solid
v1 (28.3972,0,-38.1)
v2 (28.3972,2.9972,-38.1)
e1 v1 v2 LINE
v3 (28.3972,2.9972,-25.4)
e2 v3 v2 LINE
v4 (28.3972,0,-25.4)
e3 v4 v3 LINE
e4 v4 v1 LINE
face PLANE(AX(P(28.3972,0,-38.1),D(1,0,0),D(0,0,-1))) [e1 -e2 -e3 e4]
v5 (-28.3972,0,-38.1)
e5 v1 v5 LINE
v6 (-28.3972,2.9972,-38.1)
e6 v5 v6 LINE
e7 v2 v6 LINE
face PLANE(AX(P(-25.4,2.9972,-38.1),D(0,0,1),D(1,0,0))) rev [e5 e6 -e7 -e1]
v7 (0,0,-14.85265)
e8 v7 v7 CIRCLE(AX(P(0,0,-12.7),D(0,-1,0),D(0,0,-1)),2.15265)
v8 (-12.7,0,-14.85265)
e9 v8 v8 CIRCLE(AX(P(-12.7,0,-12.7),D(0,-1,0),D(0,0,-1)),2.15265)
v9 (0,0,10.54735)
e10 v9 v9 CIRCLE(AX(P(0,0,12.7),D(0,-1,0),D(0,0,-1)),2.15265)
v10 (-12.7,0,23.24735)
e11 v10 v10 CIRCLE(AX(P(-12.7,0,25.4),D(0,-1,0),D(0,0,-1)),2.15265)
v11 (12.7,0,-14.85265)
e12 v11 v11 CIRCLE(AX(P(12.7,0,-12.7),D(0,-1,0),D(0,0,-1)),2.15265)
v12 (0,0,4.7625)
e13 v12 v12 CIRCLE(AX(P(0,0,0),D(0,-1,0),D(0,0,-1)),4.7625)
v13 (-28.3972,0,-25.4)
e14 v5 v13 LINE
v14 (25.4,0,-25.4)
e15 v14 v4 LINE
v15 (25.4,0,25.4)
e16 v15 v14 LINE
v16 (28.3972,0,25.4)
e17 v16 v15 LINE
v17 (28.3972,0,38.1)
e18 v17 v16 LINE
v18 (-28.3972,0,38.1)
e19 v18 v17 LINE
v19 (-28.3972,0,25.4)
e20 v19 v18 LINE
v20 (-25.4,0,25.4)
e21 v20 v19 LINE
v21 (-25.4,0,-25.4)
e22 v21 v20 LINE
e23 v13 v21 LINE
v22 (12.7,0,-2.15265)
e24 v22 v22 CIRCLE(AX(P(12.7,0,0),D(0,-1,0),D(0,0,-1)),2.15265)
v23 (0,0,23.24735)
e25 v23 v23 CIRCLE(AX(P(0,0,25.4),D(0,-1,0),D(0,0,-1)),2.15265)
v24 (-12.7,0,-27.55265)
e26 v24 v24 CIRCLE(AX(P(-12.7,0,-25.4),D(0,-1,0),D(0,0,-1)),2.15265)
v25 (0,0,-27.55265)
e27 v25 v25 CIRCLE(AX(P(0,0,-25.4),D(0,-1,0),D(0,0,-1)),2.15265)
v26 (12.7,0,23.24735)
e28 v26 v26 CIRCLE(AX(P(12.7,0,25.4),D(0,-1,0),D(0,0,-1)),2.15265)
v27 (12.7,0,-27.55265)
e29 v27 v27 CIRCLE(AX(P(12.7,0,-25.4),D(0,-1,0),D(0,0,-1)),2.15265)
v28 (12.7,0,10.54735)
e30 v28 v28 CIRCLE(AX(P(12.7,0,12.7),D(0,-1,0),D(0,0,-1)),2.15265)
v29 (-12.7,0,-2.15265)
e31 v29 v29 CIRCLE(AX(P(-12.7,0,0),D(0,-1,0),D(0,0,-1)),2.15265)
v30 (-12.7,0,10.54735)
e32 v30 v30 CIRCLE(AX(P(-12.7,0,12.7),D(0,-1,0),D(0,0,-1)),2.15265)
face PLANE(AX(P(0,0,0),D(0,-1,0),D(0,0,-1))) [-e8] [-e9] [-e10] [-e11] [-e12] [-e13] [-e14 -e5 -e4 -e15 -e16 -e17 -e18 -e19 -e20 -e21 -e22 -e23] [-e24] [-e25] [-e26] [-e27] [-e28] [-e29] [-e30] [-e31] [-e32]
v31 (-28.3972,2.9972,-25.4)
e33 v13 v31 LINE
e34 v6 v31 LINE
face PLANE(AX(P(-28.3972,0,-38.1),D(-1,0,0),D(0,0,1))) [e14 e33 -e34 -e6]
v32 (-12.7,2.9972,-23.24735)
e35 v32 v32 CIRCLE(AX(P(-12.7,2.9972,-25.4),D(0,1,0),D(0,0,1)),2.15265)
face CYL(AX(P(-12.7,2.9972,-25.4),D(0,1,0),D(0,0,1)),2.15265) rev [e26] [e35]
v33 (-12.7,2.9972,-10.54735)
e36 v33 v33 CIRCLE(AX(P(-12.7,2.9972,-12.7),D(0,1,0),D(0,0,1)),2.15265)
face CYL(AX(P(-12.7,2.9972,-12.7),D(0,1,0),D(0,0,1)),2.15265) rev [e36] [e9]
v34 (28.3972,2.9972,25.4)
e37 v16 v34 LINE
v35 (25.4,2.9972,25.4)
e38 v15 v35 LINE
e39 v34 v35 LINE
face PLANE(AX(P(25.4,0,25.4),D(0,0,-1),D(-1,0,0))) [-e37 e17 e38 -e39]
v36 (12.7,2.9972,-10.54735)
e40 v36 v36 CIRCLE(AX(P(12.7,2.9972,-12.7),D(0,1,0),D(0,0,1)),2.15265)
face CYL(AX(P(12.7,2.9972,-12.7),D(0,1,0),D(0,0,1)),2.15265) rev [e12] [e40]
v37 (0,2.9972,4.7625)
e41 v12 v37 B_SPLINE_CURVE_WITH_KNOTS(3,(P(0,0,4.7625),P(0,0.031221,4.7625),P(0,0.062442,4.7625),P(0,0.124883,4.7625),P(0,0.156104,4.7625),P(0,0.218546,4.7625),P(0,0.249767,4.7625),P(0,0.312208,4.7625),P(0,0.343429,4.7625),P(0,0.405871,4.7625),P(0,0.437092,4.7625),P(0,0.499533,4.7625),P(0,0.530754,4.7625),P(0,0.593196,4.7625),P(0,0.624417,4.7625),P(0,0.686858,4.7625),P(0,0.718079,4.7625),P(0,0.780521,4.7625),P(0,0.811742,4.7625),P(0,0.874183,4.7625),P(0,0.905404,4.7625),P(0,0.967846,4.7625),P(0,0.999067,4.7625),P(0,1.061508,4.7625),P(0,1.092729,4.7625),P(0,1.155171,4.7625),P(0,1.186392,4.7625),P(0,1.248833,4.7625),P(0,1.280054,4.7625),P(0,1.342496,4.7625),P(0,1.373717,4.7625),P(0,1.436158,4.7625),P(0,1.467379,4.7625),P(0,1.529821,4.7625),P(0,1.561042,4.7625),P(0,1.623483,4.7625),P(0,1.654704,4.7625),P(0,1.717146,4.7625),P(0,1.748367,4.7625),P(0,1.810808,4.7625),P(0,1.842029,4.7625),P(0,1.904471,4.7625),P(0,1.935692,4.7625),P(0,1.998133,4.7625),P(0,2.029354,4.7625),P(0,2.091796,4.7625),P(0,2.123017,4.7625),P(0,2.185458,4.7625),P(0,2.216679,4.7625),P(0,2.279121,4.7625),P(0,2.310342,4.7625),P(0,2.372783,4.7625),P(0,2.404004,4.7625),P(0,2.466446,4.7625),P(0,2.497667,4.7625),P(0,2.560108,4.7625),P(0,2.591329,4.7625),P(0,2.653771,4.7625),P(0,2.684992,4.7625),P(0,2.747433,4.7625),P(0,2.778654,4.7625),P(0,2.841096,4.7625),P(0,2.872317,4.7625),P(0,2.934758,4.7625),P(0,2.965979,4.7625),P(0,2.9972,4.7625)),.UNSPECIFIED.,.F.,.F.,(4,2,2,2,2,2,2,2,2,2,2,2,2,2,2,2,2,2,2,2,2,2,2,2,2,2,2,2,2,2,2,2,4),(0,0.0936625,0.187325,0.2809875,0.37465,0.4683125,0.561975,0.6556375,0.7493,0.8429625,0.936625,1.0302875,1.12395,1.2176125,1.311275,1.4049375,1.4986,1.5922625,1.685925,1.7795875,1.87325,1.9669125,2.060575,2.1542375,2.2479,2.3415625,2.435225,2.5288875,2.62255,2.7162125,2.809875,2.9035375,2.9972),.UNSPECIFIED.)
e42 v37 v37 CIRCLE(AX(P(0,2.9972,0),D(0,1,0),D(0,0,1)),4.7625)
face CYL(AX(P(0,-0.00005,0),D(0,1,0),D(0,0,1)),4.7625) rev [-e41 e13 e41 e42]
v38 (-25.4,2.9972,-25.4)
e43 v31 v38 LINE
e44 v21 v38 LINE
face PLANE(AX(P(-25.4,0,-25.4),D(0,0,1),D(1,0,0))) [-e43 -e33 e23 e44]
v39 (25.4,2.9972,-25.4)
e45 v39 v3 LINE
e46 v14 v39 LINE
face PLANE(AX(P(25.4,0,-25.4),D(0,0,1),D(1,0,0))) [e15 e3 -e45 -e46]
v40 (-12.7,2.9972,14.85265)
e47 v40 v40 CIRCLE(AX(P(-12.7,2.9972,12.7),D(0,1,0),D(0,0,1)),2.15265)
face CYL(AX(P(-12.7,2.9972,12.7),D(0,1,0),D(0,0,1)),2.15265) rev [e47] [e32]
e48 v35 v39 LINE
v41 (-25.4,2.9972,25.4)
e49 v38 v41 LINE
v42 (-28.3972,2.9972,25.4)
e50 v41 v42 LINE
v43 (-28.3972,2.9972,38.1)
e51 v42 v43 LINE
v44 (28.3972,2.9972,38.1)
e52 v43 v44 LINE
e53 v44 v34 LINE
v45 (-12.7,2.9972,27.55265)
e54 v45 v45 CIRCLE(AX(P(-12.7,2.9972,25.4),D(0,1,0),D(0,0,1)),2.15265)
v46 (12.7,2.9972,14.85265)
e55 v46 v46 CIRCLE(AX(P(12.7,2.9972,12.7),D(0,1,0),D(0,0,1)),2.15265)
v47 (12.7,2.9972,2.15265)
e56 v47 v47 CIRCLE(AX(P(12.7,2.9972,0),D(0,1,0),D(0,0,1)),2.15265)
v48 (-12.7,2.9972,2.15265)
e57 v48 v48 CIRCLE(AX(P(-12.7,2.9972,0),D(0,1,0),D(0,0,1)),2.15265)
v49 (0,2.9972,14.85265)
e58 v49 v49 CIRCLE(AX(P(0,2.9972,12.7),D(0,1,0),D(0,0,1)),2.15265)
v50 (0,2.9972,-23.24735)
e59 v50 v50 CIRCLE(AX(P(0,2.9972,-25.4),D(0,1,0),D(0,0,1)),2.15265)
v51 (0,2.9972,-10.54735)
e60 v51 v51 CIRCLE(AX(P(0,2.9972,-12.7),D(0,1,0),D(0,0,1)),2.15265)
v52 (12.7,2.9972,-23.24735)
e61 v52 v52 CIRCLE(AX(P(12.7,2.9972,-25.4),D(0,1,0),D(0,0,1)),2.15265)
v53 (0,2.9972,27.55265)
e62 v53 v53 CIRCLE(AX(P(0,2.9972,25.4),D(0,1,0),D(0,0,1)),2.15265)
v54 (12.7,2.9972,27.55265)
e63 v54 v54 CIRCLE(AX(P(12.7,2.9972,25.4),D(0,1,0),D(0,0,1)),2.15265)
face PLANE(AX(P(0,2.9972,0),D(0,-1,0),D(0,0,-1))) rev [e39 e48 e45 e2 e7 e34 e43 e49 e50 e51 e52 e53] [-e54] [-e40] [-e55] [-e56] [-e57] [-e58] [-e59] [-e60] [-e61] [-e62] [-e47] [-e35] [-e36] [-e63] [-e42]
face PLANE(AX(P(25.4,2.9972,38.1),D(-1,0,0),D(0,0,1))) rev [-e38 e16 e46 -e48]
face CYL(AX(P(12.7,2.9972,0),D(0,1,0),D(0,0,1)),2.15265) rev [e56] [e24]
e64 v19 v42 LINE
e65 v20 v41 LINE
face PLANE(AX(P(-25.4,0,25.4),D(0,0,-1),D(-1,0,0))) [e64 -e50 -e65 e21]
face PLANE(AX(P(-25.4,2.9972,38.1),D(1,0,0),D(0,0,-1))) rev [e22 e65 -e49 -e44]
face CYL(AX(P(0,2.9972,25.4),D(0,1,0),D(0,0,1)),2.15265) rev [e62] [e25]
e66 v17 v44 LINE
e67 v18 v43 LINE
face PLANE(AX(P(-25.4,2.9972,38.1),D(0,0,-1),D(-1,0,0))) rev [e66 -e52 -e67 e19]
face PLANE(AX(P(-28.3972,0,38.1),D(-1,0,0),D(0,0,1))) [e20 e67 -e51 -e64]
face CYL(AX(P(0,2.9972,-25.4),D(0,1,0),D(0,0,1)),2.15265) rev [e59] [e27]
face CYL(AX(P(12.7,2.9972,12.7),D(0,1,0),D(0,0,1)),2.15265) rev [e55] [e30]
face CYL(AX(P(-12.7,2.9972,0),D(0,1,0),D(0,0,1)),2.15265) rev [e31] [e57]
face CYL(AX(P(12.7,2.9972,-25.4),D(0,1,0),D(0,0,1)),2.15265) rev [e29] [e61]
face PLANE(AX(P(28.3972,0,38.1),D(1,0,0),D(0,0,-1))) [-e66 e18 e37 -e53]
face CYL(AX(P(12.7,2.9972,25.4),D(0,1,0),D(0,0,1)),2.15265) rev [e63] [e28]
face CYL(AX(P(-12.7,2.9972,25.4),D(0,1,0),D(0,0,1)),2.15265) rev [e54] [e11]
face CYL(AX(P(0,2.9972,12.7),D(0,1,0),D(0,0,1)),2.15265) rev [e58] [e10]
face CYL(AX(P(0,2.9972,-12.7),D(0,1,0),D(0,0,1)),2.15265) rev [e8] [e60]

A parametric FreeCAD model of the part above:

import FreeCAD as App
import Part
import Sketcher
Q = App.Units.Quantity

doc = App.newDocument("Part")
body = doc.addObject("PartDesign::Body", "Body")

# Sketch on XZ plane
sketch1 = doc.addObject("Sketcher::SketchObject", "Sketch")
body.addObject(sketch1)
sketch1.AttachmentSupport = (doc.XZ_Plane, [""])
sketch1.MapMode = "FlatFace"
sketch1.addGeometry(Part.LineSegment(App.Vector(-25, -38, 0), App.Vector(-25, 38, 0)), False)
sketch1.addGeometry(Part.LineSegment(App.Vector(-25, 38, 0), App.Vector(25, 38, 0)), False)
sketch1.addGeometry(Part.LineSegment(App.Vector(25, 38, 0), App.Vector(25, -38, 0)), False)
sketch1.addGeometry(Part.LineSegment(App.Vector(25, -38, 0), App.Vector(-25, -38, 0)), False)
sketch1.addConstraint(Sketcher.Constraint("Coincident", 0, 2, 1, 1))
sketch1.addConstraint(Sketcher.Constraint("Coincident", 1, 2, 2, 1))
sketch1.addConstraint(Sketcher.Constraint("Coincident", 2, 2, 3, 1))
sketch1.addConstraint(Sketcher.Constraint("Coincident", 3, 2, 0, 1))
sketch1.addConstraint(Sketcher.Constraint("Vertical", 0))
sketch1.addConstraint(Sketcher.Constraint("Horizontal", 1))
sketch1.addConstraint(Sketcher.Constraint("Vertical", 2))
sketch1.addConstraint(Sketcher.Constraint("Horizontal", 3))
sketch1.addConstraint(Sketcher.Constraint("Symmetric", 0, 2, 2, 2, -1, 1))
sketch1.addConstraint(Sketcher.Constraint("DistanceX", 1, 1, 1, 2, Q("2 in")))
sketch1.addConstraint(Sketcher.Constraint("DistanceY", 0, 1, 0, 2, Q("3 in")))
pad1 = doc.addObject("PartDesign::Pad", "Pad")
body.addObject(pad1)
pad1.Profile = sketch1
pad1.Length = Q("0.118 in")
pad1.Reversed = True

# Sketch on XZ plane
sketch2 = doc.addObject("Sketcher::SketchObject", "Sketch001")
body.addObject(sketch2)
sketch2.AttachmentSupport = (doc.XZ_Plane, [""])
sketch2.MapMode = "FlatFace"
sketch2.AttachmentOffset = App.Placement(App.Vector(0, 0, -0.118 * 25.4), App.Rotation())
sketch2.addGeometry(Part.LineSegment(App.Vector(25.4, -38.1, 0), App.Vector(25.4, -25.4, 0)), False)
sketch2.addGeometry(Part.LineSegment(App.Vector(25.4, -25.4, 0), App.Vector(28.4, -25.4, 0)), False)
sketch2.addGeometry(Part.LineSegment(App.Vector(28.4, -25.4, 0), App.Vector(28.4, -38.1, 0)), False)
sketch2.addGeometry(Part.LineSegment(App.Vector(28.4, -38.1, 0), App.Vector(25.4, -38.1, 0)), False)
sketch2.addGeometry(Part.LineSegment(App.Vector(25.4, 25.4, 0), App.Vector(25.4, 38.1, 0)), False)
sketch2.addGeometry(Part.LineSegment(App.Vector(25.4, 38.1, 0), App.Vector(28.4, 38.1, 0)), False)
sketch2.addGeometry(Part.LineSegment(App.Vector(28.4, 38.1, 0), App.Vector(28.4, 25.4, 0)), False)
sketch2.addGeometry(Part.LineSegment(App.Vector(28.4, 25.4, 0), App.Vector(25.4, 25.4, 0)), False)
sketch2.addGeometry(Part.LineSegment(App.Vector(-28.4, 25.4, 0), App.Vector(-28.4, 38.1, 0)), False)
sketch2.addGeometry(Part.LineSegment(App.Vector(-28.4, 38.1, 0), App.Vector(-25.4, 38.1, 0)), False)
sketch2.addGeometry(Part.LineSegment(App.Vector(-25.4, 38.1, 0), App.Vector(-25.4, 25.4, 0)), False)
sketch2.addGeometry(Part.LineSegment(App.Vector(-25.4, 25.4, 0), App.Vector(-28.4, 25.4, 0)), False)
sketch2.addGeometry(Part.LineSegment(App.Vector(-28.4, -38.1, 0), App.Vector(-28.4, -25.4, 0)), False)
sketch2.addGeometry(Part.LineSegment(App.Vector(-28.4, -25.4, 0), App.Vector(-25.4, -25.4, 0)), False)
sketch2.addGeometry(Part.LineSegment(App.Vector(-25.4, -25.4, 0), App.Vector(-25.4, -38.1, 0)), False)
sketch2.addGeometry(Part.LineSegment(App.Vector(-25.4, -38.1, 0), App.Vector(-28.4, -38.1, 0)), False)
sketch2.addConstraint(Sketcher.Constraint("Coincident", 0, 2, 1, 1))
sketch2.addConstraint(Sketcher.Constraint("Coincident", 1, 2, 2, 1))
sketch2.addConstraint(Sketcher.Constraint("Coincident", 2, 2, 3, 1))
sketch2.addConstraint(Sketcher.Constraint("Coincident", 3, 2, 0, 1))
sketch2.addConstraint(Sketcher.Constraint("Coincident", 4, 2, 5, 1))
sketch2.addConstraint(Sketcher.Constraint("Coincident", 5, 2, 6, 1))
sketch2.addConstraint(Sketcher.Constraint("Coincident", 6, 2, 7, 1))
sketch2.addConstraint(Sketcher.Constraint("Coincident", 7, 2, 4, 1))
sketch2.addConstraint(Sketcher.Constraint("Coincident", 8, 2, 9, 1))
sketch2.addConstraint(Sketcher.Constraint("Coincident", 9, 2, 10, 1))
sketch2.addConstraint(Sketcher.Constraint("Coincident", 10, 2, 11, 1))
sketch2.addConstraint(Sketcher.Constraint("Coincident", 11, 2, 8, 1))
sketch2.addConstraint(Sketcher.Constraint("Coincident", 12, 2, 13, 1))
sketch2.addConstraint(Sketcher.Constraint("Coincident", 13, 2, 14, 1))
sketch2.addConstraint(Sketcher.Constraint("Coincident", 14, 2, 15, 1))
sketch2.addConstraint(Sketcher.Constraint("Coincident", 15, 2, 12, 1))
sketch2.addConstraint(Sketcher.Constraint("Vertical", 0))
sketch2.addConstraint(Sketcher.Constraint("Horizontal", 1))
sketch2.addConstraint(Sketcher.Constraint("Vertical", 2))
sketch2.addConstraint(Sketcher.Constraint("Horizontal", 3))
sketch2.addConstraint(Sketcher.Constraint("Vertical", 4))
sketch2.addConstraint(Sketcher.Constraint("Horizontal", 5))
sketch2.addConstraint(Sketcher.Constraint("Vertical", 6))
sketch2.addConstraint(Sketcher.Constraint("Horizontal", 7))
sketch2.addConstraint(Sketcher.Constraint("Vertical", 8))
sketch2.addConstraint(Sketcher.Constraint("Horizontal", 9))
sketch2.addConstraint(Sketcher.Constraint("Vertical", 10))
sketch2.addConstraint(Sketcher.Constraint("Horizontal", 11))
sketch2.addConstraint(Sketcher.Constraint("Vertical", 12))
sketch2.addConstraint(Sketcher.Constraint("Horizontal", 13))
sketch2.addConstraint(Sketcher.Constraint("Vertical", 14))
sketch2.addConstraint(Sketcher.Constraint("Horizontal", 15))
sketch2.addConstraint(Sketcher.Constraint("Symmetric", 2, 2, 8, 2, -1, 1))
sketch2.addConstraint(Sketcher.Constraint("Symmetric", 0, 2, 10, 2, -1, 1))
sketch2.addConstraint(Sketcher.Constraint("Symmetric", 6, 2, 12, 2, -1, 1))
sketch2.addConstraint(Sketcher.Constraint("Symmetric", 4, 2, 14, 2, -1, 1))
sketch2.addConstraint(Sketcher.Constraint("Symmetric", 5, 2, 8, 2, -2))
sketch2.addConstraint(Sketcher.Constraint("Symmetric", 7, 2, 10, 2, -2))
sketch2.addConstraint(Sketcher.Constraint("DistanceY", 0, 1, 0, 2, Q("0.5 in")))
sketch2.addConstraint(Sketcher.Constraint("DistanceX", -1, 1, 0, 2, Q("1 in")))
sketch2.addConstraint(Sketcher.Constraint("DistanceY", 0, 2, -1, 1, Q("1 in")))
sketch2.addConstraint(Sketcher.Constraint("DistanceX", 1, 1, 1, 2, Q("0.118 in")))
pad2 = doc.addObject("PartDesign::Pad", "Pad001")
body.addObject(pad2)
pad2.Profile = sketch2
pad2.Length = Q("0.118 in")

# Sketch on XZ plane
sketch3 = doc.addObject("Sketcher::SketchObject", "Sketch002")
body.addObject(sketch3)
sketch3.AttachmentSupport = (doc.XZ_Plane, [""])
sketch3.MapMode = "FlatFace"
sketch3.AttachmentOffset = App.Placement(App.Vector(0, 0, -0.118 * 25.4), App.Rotation())
sketch3.addGeometry(Part.Circle(App.Vector(12.7, 25.4, 0), App.Vector(0, 0, 1), 2.2), False)
sketch3.addGeometry(Part.Circle(App.Vector(0, 25.4, 0), App.Vector(0, 0, 1), 2.2), False)
sketch3.addGeometry(Part.Circle(App.Vector(-12.7, 25.4, 0), App.Vector(0, 0, 1), 2.2), False)
sketch3.addGeometry(Part.Circle(App.Vector(-12.7, 12.7, 0), App.Vector(0, 0, 1), 2.2), False)
sketch3.addGeometry(Part.Circle(App.Vector(0, 12.7, 0), App.Vector(0, 0, 1), 2.2), False)
sketch3.addGeometry(Part.Circle(App.Vector(12.7, 12.7, 0), App.Vector(0, 0, 1), 2.2), False)
sketch3.addGeometry(Part.Circle(App.Vector(-12.7, 0, 0), App.Vector(0, 0, 1), 2.2), False)
sketch3.addGeometry(Part.Circle(App.Vector(0, 0, 0), App.Vector(0, 0, 1), 2.2), False)
sketch3.addGeometry(Part.Circle(App.Vector(12.7, 0, 0), App.Vector(0, 0, 1), 2.2), False)
sketch3.addGeometry(Part.Circle(App.Vector(12.7, -12.7, 0), App.Vector(0, 0, 1), 2.2), False)
sketch3.addGeometry(Part.Circle(App.Vector(0, -12.7, 0), App.Vector(0, 0, 1), 2.2), False)
sketch3.addGeometry(Part.Circle(App.Vector(-12.7, -12.7, 0), App.Vector(0, 0, 1), 2.2), False)
sketch3.addGeometry(Part.Circle(App.Vector(-12.7, -25.4, 0), App.Vector(0, 0, 1), 2.2), False)
sketch3.addGeometry(Part.Circle(App.Vector(0, -25.4, 0), App.Vector(0, 0, 1), 2.2), False)
sketch3.addGeometry(Part.Circle(App.Vector(12.7, -25.4, 0), App.Vector(0, 0, 1), 2.2), False)
sketch3.addConstraint(Sketcher.Constraint("Coincident", 7, 3, -1, 1))
sketch3.addConstraint(Sketcher.Constraint("Equal", 0, 1))
sketch3.addConstraint(Sketcher.Constraint("Equal", 1, 2))
sketch3.addConstraint(Sketcher.Constraint("Equal", 2, 3))
sketch3.addConstraint(Sketcher.Constraint("Equal", 3, 4))
sketch3.addConstraint(Sketcher.Constraint("Equal", 4, 5))
sketch3.addConstraint(Sketcher.Constraint("Equal", 5, 6))
sketch3.addConstraint(Sketcher.Constraint("Equal", 6, 7))
sketch3.addConstraint(Sketcher.Constraint("Equal", 7, 8))
sketch3.addConstraint(Sketcher.Constraint("Equal", 8, 9))
sketch3.addConstraint(Sketcher.Constraint("Equal", 9, 10))
sketch3.addConstraint(Sketcher.Constraint("Equal", 10, 11))
sketch3.addConstraint(Sketcher.Constraint("Equal", 11, 12))
sketch3.addConstraint(Sketcher.Constraint("Equal", 12, 13))
sketch3.addConstraint(Sketcher.Constraint("Equal", 13, 14))
sketch3.addConstraint(Sketcher.Constraint("Symmetric", 6, 3, 8, 3, -1, 1))
sketch3.addConstraint(Sketcher.Constraint("Symmetric", 3, 3, 9, 3, -1, 1))
sketch3.addConstraint(Sketcher.Constraint("Symmetric", 4, 3, 10, 3, -1, 1))
sketch3.addConstraint(Sketcher.Constraint("Symmetric", 5, 3, 11, 3, -1, 1))
sketch3.addConstraint(Sketcher.Constraint("Symmetric", 0, 3, 12, 3, -1, 1))
sketch3.addConstraint(Sketcher.Constraint("Symmetric", 1, 3, 13, 3, -1, 1))
sketch3.addConstraint(Sketcher.Constraint("Symmetric", 2, 3, 14, 3, -1, 1))
sketch3.addConstraint(Sketcher.Constraint("Symmetric", 0, 3, 2, 3, -2))
sketch3.addConstraint(Sketcher.Constraint("Symmetric", 3, 3, 5, 3, -2))
sketch3.addConstraint(Sketcher.Constraint("PointOnObject", 1, 3, -2))
sketch3.addConstraint(Sketcher.Constraint("PointOnObject", 4, 3, -2))
sketch3.addConstraint(Sketcher.Constraint("PointOnObject", 6, 3, -1))
sketch3.addConstraint(Sketcher.Constraint("Horizontal", 0, 3, 1, 3))
sketch3.addConstraint(Sketcher.Constraint("Horizontal", 3, 3, 4, 3))
sketch3.addConstraint(Sketcher.Constraint("Vertical", 2, 3, 3, 3))
sketch3.addConstraint(Sketcher.Constraint("Vertical", 3, 3, 6, 3))
sketch3.addConstraint(Sketcher.Constraint("DistanceY", -1, 1, 0, 3, Q("1 in")))
sketch3.addConstraint(Sketcher.Constraint("DistanceX", 2, 3, 0, 3, Q("1 in")))
sketch3.addConstraint(Sketcher.Constraint("DistanceY", 9, 3, 5, 3, Q("1 in")))
sketch3.addConstraint(Sketcher.Constraint("Diameter", 0, Q("0.1695 in")))
doc.recompute()
hole = doc.addObject("PartDesign::Hole", "Hole")
body.addObject(hole)
hole.Profile = sketch3
hole.ThreadType = "None"
hole.Diameter = Q("0.1695 in")
hole.DepthType = "Dimension"
hole.Depth = 6.351016
hole.DrillPoint = "Flat"
hole.Reversed = True

# Sketch on XZ plane
sketch4 = doc.addObject("Sketcher::SketchObject", "Sketch003")
body.addObject(sketch4)
sketch4.AttachmentSupport = (doc.XZ_Plane, [""])
sketch4.MapMode = "FlatFace"
sketch4.AttachmentOffset = App.Placement(App.Vector(0, 0, -0.118 * 25.4), App.Rotation())
sketch4.addGeometry(Part.Circle(App.Vector(0, 0, 0), App.Vector(0, 0, 1), 4.8), False)
sketch4.addConstraint(Sketcher.Constraint("Coincident", 0, 3, -1, 1))
sketch4.addConstraint(Sketcher.Constraint("Diameter", 0, Q("0.375 in")))
pocket1 = doc.addObject("PartDesign::Pocket", "Pocket")
body.addObject(pocket1)
pocket1.Profile = sketch4
pocket1.Type = "ThroughAll"
pocket1.Reversed = True

doc.recompute()
